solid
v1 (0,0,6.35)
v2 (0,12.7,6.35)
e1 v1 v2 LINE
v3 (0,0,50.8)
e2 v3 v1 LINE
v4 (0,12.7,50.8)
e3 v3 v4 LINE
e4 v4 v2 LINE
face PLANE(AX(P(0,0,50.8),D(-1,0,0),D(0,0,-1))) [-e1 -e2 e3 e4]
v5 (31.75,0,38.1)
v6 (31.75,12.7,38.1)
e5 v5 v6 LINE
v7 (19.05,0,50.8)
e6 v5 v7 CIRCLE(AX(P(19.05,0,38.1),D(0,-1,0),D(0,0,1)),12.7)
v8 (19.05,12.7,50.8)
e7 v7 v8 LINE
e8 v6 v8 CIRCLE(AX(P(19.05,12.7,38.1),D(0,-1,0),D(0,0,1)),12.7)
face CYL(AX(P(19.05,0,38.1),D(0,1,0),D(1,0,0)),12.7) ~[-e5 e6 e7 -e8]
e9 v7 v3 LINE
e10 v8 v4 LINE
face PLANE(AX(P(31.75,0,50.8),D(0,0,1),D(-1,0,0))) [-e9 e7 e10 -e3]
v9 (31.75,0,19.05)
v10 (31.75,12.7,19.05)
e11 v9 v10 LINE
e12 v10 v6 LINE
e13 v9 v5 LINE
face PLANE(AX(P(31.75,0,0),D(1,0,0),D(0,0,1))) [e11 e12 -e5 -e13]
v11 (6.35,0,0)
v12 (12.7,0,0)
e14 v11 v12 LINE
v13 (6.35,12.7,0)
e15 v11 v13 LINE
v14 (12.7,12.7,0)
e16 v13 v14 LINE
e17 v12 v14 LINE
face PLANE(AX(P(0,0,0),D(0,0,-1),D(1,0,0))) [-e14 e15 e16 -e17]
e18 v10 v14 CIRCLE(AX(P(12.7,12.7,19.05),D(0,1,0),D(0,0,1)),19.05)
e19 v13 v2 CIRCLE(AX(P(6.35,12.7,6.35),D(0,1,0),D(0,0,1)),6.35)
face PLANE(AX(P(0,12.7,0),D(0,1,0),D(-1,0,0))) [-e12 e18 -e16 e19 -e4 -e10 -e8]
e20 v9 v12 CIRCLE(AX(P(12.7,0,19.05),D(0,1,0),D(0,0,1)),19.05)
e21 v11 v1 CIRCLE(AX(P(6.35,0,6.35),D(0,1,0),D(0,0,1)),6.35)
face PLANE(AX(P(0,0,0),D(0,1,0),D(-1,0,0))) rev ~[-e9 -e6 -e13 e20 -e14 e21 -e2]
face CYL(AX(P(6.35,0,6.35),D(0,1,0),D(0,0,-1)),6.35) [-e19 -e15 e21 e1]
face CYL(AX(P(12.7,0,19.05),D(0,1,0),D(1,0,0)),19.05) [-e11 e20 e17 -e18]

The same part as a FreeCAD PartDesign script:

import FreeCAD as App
import Part
import Sketcher
Q = App.Units.Quantity


def edges_at(feature, points):
    """Names of the edges that pass closest to the given points."""
    edges = feature.Shape.Edges
    near = lambda p: min(range(len(edges)), key=lambda i: edges[i].distToShape(Part.Vertex(*p))[0])
    return sorted({f"Edge{near(p) + 1}" for p in points})


def add_polygon(sketch, points):
    """Adds a closed chain of lines whose ends are joined by coincident constraints."""
    first, n = sketch.GeometryCount, len(points)
    for a, b in zip(points, points[1:] + points[:1]):
        sketch.addGeometry(Part.LineSegment(App.Vector(*a, 0), App.Vector(*b, 0)), False)
    for i in range(n):
        sketch.addConstraint(Sketcher.Constraint("Coincident", first + i, 2, first + (i + 1) % n, 1))

doc = App.newDocument("Part")
body = doc.addObject("PartDesign::Body", "Body")

# Sketch on XZ plane
sketch1 = body.newObject("Sketcher::SketchObject", "Sketch")
sketch1.AttachmentSupport = (doc.getObject("XZ_Plane"), [""])
sketch1.MapMode = "FlatFace"
add_polygon(sketch1, [(32, 0), (0, 0), (0, 51), (32, 51)])  # lines 0-3
sketch1.addConstraint([
    Sketcher.Constraint("Horizontal", 0),
    Sketcher.Constraint("Vertical", 1),
    Sketcher.Constraint("Horizontal", 2),
    Sketcher.Constraint("Vertical", 3),
    Sketcher.Constraint("Coincident", 0, 2, -1, 1),
    Sketcher.Constraint("DistanceY", 1, 1, 1, 2, Q("2 in")),
    Sketcher.Constraint("DistanceX", 0, 2, 0, 1, Q("1.25 in")),
])
pad1 = body.newObject("PartDesign::Pad", "Pad")
pad1.Profile = sketch1
pad1.Length = Q("0.5 in")
pad1.Reversed = True
doc.recompute()

fillet = body.newObject("PartDesign::Fillet", "Fillet")
fillet.Base = (pad1, edges_at(pad1, [(0, 6.35, 0)]))
fillet.Radius = Q("0.25 in")
doc.recompute()

fillet2 = body.newObject("PartDesign::Fillet", "Fillet001")
fillet2.Base = (fillet, edges_at(fillet, [(31.75, 6.35, 50.8)]))
fillet2.Radius = Q("0.5 in")
doc.recompute()

fillet3 = body.newObject("PartDesign::Fillet", "Fillet002")
fillet3.Base = (fillet2, edges_at(fillet2, [(31.75, 6.35, 0)]))
fillet3.Radius = Q("0.75 in")

doc.recompute()
